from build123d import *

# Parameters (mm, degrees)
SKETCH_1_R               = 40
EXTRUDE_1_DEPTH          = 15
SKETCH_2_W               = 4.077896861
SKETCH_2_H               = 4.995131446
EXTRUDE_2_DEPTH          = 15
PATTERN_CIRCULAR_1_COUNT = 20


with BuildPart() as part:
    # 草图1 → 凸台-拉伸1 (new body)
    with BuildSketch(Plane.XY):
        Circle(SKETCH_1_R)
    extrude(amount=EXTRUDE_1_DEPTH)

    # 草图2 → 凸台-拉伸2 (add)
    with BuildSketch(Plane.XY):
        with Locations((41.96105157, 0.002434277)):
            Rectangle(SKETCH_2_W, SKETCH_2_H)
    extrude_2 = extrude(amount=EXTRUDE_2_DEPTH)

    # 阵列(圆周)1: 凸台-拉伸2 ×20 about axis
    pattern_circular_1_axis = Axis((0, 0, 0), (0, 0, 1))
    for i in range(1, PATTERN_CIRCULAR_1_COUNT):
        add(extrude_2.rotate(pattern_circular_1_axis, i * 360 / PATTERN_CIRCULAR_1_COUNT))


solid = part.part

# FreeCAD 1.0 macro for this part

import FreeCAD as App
import Part
import Sketcher
Q = App.Units.Quantity


def add_polygon(sketch, points):
    """Adds a closed chain of lines whose ends are joined by coincident constraints."""
    first, n = sketch.GeometryCount, len(points)
    for a, b in zip(points, points[1:] + points[:1]):
        sketch.addGeometry(Part.LineSegment(App.Vector(*a, 0), App.Vector(*b, 0)), False)
    for i in range(n):
        sketch.addConstraint(Sketcher.Constraint("Coincident", first + i, 2, first + (i + 1) % n, 1))

doc = App.newDocument("Part")
params = doc.addObject("Spreadsheet::Sheet", "Params")
for row, (alias, value) in enumerate([
    ("sketch1_diameter", "80 mm"),
    ("pad1_length", "15 mm"),
    ("pad2_length", "15 mm"),
], start=1):
    params.set(f"A{row}", alias)
    params.set(f"B{row}", "=" + value)
    params.setAlias(f"B{row}", alias)

body = doc.addObject("PartDesign::Body", "Body")

# Sketch on XY plane
sketch1 = body.newObject("Sketcher::SketchObject", "Sketch")
sketch1.AttachmentSupport = (doc.getObject("XY_Plane"), [""])
sketch1.MapMode = "FlatFace"
sketch1.addGeometry(Part.Circle(App.Vector(0, 0, 0), App.Vector(0, 0, 1), 40), False)
sketch1.addConstraint([
    Sketcher.Constraint("Coincident", 0, 3, -1, 1),
    Sketcher.Constraint("Diameter", 0, Q("80 mm")),
])
sketch1.setExpression("Constraints[1]", "Params.sketch1_diameter")
pad1 = body.newObject("PartDesign::Pad", "Pad")
pad1.Profile = sketch1
pad1.setExpression("Length", "Params.pad1_length")

# Sketch on XY plane
sketch2 = body.newObject("Sketcher::SketchObject", "Sketch001")
sketch2.AttachmentSupport = (doc.getObject("XY_Plane"), [""])
sketch2.MapMode = "FlatFace"
add_polygon(sketch2, [(39.9, 2.5), (39.9, -2.5), (44, -2.5), (44, 2.5)])  # lines 0-3
sketch2.addConstraint([
    Sketcher.Constraint("Vertical", 0),
    Sketcher.Constraint("Horizontal", 1),
    Sketcher.Constraint("Vertical", 2),
    Sketcher.Constraint("Horizontal", 3),
    Sketcher.Constraint("DistanceX", -1, 1, 1, 2, Q("44 mm")),
    Sketcher.Constraint("DistanceY", -1, 1, 2, 2, Q("2.5 mm")),
    Sketcher.Constraint("DistanceY", 0, 2, 0, 1, Q("4.995131 mm")),
    Sketcher.Constraint("DistanceX", 1, 1, 1, 2, Q("4.077897 mm")),
])
pad2 = body.newObject("PartDesign::Pad", "Pad001")
pad2.Profile = sketch2
pad2.setExpression("Length", "Params.pad2_length")
doc.recompute()

polarpattern = body.newObject("PartDesign::PolarPattern", "PolarPattern")
polarpattern.Originals = [pad2]
polarpattern.Axis = (doc.getObject("Z_Axis"), [""])
polarpattern.Angle = 360
polarpattern.Occurrences = 20
body.Tip = polarpattern

doc.recompute()
